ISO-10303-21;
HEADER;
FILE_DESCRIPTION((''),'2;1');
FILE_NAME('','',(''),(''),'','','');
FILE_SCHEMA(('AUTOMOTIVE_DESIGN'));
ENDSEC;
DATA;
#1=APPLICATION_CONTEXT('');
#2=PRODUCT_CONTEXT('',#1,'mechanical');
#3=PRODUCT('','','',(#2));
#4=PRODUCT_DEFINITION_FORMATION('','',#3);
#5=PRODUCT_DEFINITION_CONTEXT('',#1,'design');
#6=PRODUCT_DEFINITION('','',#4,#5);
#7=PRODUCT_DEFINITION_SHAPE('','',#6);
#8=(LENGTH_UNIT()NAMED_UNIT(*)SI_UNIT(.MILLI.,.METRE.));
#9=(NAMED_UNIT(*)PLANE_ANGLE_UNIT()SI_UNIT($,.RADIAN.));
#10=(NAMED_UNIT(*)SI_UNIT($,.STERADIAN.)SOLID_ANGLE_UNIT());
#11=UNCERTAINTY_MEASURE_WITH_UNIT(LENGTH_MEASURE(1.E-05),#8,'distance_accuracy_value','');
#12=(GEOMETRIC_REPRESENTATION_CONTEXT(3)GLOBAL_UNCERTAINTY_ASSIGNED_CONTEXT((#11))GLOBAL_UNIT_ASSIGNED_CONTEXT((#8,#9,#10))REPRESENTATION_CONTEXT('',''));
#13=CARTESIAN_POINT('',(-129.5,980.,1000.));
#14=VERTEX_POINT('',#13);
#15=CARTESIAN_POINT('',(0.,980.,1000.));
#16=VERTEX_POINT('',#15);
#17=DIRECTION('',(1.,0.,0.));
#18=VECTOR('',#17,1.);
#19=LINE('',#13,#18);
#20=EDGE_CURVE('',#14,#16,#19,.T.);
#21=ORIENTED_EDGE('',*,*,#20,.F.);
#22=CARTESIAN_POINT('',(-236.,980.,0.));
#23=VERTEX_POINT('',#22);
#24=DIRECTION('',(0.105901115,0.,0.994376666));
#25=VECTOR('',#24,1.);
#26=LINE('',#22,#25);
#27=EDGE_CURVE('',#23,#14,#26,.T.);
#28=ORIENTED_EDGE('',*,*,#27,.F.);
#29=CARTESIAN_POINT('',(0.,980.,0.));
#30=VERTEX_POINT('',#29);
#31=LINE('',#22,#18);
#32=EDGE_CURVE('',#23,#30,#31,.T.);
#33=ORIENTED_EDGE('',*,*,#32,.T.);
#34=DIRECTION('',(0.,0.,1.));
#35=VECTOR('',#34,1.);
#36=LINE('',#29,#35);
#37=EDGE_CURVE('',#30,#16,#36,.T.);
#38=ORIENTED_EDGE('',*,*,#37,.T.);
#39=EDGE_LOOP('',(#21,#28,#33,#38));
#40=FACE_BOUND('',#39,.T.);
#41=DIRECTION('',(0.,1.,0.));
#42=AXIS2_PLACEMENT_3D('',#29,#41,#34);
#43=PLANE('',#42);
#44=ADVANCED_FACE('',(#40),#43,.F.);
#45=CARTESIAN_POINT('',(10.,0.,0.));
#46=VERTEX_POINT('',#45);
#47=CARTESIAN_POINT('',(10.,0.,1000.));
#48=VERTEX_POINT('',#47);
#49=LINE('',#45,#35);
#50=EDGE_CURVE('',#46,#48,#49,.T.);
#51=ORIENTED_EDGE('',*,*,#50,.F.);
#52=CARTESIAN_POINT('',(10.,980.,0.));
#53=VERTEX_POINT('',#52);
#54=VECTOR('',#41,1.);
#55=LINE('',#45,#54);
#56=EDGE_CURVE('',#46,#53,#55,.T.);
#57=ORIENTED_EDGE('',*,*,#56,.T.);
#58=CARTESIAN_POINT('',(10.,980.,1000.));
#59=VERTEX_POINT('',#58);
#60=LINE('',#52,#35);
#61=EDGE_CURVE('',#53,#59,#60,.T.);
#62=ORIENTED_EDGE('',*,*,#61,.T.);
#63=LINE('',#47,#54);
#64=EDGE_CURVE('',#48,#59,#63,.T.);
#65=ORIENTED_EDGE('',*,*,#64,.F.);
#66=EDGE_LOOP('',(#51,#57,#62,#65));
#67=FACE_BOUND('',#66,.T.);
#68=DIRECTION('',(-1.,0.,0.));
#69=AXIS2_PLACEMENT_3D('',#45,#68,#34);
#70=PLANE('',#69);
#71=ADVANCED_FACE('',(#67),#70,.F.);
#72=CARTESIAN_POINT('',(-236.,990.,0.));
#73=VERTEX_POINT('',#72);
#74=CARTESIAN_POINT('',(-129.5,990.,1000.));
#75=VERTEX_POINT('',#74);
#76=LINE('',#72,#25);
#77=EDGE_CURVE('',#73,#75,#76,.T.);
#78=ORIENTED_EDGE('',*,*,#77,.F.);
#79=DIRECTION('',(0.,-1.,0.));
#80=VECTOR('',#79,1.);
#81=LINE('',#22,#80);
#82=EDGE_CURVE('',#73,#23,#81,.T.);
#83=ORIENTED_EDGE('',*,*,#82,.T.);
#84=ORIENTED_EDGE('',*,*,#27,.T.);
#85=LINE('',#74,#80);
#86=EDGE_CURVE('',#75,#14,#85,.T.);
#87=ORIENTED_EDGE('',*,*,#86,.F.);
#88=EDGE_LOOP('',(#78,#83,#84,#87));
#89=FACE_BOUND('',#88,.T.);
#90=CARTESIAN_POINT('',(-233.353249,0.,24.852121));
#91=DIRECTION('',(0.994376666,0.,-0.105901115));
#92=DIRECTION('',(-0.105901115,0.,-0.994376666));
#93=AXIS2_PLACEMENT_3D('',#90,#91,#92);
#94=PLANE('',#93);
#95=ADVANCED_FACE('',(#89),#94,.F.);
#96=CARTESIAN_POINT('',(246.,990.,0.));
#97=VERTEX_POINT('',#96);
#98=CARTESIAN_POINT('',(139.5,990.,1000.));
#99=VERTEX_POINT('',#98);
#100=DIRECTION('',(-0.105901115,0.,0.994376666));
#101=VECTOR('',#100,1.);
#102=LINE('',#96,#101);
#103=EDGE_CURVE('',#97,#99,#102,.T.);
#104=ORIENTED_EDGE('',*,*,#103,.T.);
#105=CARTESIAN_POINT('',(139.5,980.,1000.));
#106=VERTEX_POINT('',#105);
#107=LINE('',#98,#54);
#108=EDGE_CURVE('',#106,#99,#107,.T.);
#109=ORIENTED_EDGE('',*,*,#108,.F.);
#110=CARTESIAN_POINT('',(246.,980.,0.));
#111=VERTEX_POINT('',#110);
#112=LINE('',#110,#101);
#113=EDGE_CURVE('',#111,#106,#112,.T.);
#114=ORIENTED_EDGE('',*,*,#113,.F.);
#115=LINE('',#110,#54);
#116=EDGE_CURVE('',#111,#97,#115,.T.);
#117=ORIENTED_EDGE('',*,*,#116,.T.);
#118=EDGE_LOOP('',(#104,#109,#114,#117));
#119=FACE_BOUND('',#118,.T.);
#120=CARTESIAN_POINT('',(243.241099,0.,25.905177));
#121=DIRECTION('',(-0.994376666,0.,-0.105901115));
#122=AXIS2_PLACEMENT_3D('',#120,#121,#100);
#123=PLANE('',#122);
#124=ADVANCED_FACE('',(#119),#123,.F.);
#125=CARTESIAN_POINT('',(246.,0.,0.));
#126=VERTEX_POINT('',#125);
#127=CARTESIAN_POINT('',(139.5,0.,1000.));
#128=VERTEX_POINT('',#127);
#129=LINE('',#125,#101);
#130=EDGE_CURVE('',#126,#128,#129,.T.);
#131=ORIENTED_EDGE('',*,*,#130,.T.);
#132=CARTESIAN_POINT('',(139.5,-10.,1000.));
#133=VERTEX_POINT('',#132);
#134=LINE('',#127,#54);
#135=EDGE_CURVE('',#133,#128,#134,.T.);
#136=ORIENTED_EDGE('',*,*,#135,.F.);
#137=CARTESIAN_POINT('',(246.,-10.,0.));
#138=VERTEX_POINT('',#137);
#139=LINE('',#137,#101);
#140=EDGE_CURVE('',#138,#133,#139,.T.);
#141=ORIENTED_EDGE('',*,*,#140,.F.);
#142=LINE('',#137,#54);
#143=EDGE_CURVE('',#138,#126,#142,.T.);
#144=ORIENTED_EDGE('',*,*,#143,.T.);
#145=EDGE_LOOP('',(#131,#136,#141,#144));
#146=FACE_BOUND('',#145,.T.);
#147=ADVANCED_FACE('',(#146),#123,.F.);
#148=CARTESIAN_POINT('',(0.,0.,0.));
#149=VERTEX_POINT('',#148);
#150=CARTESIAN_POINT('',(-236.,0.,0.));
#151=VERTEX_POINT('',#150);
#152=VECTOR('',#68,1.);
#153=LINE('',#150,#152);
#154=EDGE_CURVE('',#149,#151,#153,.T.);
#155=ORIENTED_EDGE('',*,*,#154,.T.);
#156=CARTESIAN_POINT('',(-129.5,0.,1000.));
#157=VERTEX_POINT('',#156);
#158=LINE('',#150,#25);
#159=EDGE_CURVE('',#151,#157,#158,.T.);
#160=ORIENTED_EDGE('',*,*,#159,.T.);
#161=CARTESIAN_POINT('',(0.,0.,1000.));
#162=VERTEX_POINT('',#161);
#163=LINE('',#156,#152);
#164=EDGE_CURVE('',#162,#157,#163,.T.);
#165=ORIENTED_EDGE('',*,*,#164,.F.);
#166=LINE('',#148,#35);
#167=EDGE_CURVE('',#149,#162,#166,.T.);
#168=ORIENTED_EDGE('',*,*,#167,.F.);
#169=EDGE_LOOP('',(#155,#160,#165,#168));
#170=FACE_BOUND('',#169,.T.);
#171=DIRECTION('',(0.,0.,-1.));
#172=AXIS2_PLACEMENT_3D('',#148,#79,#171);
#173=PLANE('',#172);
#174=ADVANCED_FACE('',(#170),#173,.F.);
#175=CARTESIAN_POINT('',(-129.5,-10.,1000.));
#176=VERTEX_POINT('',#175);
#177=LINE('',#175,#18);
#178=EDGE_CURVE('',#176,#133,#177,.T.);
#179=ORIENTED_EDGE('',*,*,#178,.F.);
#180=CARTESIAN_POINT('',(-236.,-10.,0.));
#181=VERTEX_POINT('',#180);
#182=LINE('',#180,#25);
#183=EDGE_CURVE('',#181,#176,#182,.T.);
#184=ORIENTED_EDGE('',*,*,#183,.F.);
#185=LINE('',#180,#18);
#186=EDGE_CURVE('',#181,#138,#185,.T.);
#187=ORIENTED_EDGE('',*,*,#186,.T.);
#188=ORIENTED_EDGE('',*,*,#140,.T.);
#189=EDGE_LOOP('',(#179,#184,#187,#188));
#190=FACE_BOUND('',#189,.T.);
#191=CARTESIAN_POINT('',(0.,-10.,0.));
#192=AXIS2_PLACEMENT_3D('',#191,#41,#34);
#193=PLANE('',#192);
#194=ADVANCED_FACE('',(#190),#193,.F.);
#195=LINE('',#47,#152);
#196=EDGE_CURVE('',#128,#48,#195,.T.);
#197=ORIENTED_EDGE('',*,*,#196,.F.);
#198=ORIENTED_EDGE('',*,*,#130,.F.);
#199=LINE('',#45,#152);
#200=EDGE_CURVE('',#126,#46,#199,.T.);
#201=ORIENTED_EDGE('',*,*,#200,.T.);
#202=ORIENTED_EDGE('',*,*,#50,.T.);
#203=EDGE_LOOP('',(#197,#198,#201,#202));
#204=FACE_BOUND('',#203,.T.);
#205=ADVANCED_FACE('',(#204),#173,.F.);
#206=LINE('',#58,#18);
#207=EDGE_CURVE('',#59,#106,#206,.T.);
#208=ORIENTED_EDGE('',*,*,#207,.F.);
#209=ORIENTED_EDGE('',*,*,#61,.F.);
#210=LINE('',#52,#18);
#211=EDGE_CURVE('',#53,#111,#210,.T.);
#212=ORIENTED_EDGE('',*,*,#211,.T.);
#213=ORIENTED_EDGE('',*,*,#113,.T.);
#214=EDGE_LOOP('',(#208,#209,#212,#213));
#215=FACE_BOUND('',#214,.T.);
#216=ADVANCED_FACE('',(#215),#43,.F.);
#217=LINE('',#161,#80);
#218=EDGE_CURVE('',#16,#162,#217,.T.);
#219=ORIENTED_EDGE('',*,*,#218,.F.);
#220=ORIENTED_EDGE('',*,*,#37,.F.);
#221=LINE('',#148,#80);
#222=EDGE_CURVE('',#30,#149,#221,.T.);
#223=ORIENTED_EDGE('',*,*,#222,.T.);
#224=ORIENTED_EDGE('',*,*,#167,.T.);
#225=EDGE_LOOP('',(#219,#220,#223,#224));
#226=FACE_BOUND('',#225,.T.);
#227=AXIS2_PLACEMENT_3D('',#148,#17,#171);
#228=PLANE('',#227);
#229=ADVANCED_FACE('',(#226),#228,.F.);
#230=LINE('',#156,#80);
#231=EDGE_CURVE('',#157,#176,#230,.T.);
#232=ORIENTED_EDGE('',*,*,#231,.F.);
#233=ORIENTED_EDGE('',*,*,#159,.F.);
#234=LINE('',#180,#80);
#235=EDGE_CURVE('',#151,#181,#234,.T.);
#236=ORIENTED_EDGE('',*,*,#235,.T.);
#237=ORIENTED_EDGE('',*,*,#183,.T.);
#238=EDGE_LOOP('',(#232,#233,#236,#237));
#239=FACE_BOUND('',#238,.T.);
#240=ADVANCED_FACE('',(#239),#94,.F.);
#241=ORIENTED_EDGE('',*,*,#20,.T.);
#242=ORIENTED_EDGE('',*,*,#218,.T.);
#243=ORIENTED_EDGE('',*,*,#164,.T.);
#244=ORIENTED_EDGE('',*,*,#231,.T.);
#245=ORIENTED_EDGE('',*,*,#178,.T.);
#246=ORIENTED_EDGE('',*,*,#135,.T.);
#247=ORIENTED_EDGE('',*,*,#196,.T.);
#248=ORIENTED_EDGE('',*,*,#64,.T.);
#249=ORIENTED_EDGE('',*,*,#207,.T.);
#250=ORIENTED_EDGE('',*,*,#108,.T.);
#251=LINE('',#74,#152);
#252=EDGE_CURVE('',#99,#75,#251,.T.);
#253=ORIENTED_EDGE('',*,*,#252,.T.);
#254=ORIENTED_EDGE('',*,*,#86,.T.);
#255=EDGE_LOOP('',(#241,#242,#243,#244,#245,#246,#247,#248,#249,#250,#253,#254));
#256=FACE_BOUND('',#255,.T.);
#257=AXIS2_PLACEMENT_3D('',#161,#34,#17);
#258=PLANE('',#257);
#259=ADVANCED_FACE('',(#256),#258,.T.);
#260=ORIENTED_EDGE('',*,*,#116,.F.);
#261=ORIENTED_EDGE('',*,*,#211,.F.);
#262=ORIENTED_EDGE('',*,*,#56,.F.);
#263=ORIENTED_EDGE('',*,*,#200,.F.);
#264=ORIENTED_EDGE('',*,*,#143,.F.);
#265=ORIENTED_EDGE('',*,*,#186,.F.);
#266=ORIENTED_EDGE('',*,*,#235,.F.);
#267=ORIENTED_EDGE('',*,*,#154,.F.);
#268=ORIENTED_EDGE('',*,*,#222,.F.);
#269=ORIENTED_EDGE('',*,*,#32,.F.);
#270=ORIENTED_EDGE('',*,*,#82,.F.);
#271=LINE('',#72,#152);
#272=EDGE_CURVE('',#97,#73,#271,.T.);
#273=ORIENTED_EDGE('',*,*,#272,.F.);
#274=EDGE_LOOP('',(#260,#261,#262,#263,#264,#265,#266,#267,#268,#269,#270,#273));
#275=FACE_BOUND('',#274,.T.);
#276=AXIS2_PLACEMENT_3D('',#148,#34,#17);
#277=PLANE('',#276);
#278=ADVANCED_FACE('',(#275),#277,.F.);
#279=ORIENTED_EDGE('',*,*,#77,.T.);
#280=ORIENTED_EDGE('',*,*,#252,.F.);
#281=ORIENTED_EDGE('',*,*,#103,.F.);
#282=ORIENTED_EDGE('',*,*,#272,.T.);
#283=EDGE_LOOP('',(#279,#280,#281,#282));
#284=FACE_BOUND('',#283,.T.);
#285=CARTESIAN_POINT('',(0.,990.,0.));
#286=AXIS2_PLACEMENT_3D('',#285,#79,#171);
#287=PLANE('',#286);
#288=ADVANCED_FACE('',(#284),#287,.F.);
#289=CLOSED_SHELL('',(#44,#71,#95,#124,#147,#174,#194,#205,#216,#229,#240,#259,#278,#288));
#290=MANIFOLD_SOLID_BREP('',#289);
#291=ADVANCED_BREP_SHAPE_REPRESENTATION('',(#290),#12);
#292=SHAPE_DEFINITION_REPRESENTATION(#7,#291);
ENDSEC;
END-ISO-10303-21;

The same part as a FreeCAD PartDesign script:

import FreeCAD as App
import Part
import Sketcher
from FreeCAD import Vector


def add_polygon(sketch, points):
    """Adds a closed chain of lines whose ends are joined by coincident constraints."""
    first, n = sketch.GeometryCount, len(points)
    for a, b in zip(points, points[1:] + points[:1]):
        sketch.addGeometry(Part.LineSegment(App.Vector(*a, 0), App.Vector(*b, 0)), False)
    for i in range(n):
        sketch.addConstraint(Sketcher.Constraint("Coincident", first + i, 2, first + (i + 1) % n, 1))

doc = App.newDocument("Part")
body = doc.addObject("PartDesign::Body", "Body")

sketch1 = doc.addObject("Sketcher::SketchObject", "Sketch")
body.addObject(sketch1)
sketch1.AttachmentSupport = (doc.XY_Plane, [""])
sketch1.MapMode = "FlatFace"
add_polygon(sketch1, [(-236, -10), (246, -10), (246, 0), (10, 0), (10, 980), (246, 980), (246, 990), (-236, 990), (-236, 980), (0, 980), (0, 0), (-236, 0)])
sketch1.addConstraint(Sketcher.Constraint("Horizontal", 0))
sketch1.addConstraint(Sketcher.Constraint("Vertical", 1))
sketch1.addConstraint(Sketcher.Constraint("Horizontal", 2))
sketch1.addConstraint(Sketcher.Constraint("Vertical", 3))
sketch1.addConstraint(Sketcher.Constraint("Horizontal", 4))
sketch1.addConstraint(Sketcher.Constraint("Vertical", 5))
sketch1.addConstraint(Sketcher.Constraint("Horizontal", 6))
sketch1.addConstraint(Sketcher.Constraint("Vertical", 7))
sketch1.addConstraint(Sketcher.Constraint("Horizontal", 8))
sketch1.addConstraint(Sketcher.Constraint("Vertical", 9))
sketch1.addConstraint(Sketcher.Constraint("Horizontal", 10))
sketch1.addConstraint(Sketcher.Constraint("Vertical", 11))
sketch1.addConstraint(Sketcher.Constraint("Coincident", 9, 2, -1, 1))
sketch1.addConstraint(Sketcher.Constraint("PointOnObject", 1, 2, -1))
sketch1.addConstraint(Sketcher.Constraint("Horizontal", 4, 2, 7, 2))
sketch1.addConstraint(Sketcher.Constraint("Vertical", 1, 2, 4, 2))
sketch1.addConstraint(Sketcher.Constraint("Vertical", 7, 2, 10, 2))
sketch1.addConstraint(Sketcher.Constraint("Equal", 4, 8))
sketch1.addConstraint(Sketcher.Constraint("Equal", 1, 5))
sketch1.addConstraint(Sketcher.Constraint("DistanceX", 0, 1, 0, 2, 482.0))
sketch1.addConstraint(Sketcher.Constraint("DistanceX", 2, 2, 2, 1, 236.0))
sketch1.addConstraint(Sketcher.Constraint("DistanceY", 1, 1, 1, 2, 10.0))
sketch1.addConstraint(Sketcher.Constraint("DistanceY", 3, 1, 3, 2, 980.0))

sketch2 = doc.addObject("Sketcher::SketchObject", "Sketch001")
body.addObject(sketch2)
sketch2.AttachmentSupport = (doc.XY_Plane, [""])
sketch2.MapMode = "FlatFace"
sketch2.AttachmentOffset = App.Placement(Vector(0, 0, 1000), App.Rotation())
add_polygon(sketch2, [(140, 990), (-130, 990), (-130, 980), (0, 980), (0, 0), (-130, 0), (-130, -10), (140, -10), (140, 0), (10, 0), (10, 980), (140, 980)])
sketch2.addConstraint(Sketcher.Constraint("Horizontal", 0))
sketch2.addConstraint(Sketcher.Constraint("Vertical", 1))
sketch2.addConstraint(Sketcher.Constraint("Horizontal", 2))
sketch2.addConstraint(Sketcher.Constraint("Vertical", 3))
sketch2.addConstraint(Sketcher.Constraint("Horizontal", 4))
sketch2.addConstraint(Sketcher.Constraint("Vertical", 5))
sketch2.addConstraint(Sketcher.Constraint("Horizontal", 6))
sketch2.addConstraint(Sketcher.Constraint("Vertical", 7))
sketch2.addConstraint(Sketcher.Constraint("Horizontal", 8))
sketch2.addConstraint(Sketcher.Constraint("Vertical", 9))
sketch2.addConstraint(Sketcher.Constraint("Horizontal", 10))
sketch2.addConstraint(Sketcher.Constraint("Vertical", 11))
sketch2.addConstraint(Sketcher.Constraint("Coincident", 3, 2, -1, 1))
sketch2.addConstraint(Sketcher.Constraint("PointOnObject", 7, 2, -1))
sketch2.addConstraint(Sketcher.Constraint("Horizontal", 2, 2, 9, 2))
sketch2.addConstraint(Sketcher.Constraint("Vertical", 1, 2, 4, 2))
sketch2.addConstraint(Sketcher.Constraint("Vertical", 7, 2, 10, 2))
sketch2.addConstraint(Sketcher.Constraint("Equal", 4, 8))
sketch2.addConstraint(Sketcher.Constraint("Equal", 1, 5))
sketch2.addConstraint(Sketcher.Constraint("DistanceX", 0, 2, 0, 1, 269.0))
sketch2.addConstraint(Sketcher.Constraint("DistanceY", 1, 2, 1, 1, 10.0))
sketch2.addConstraint(Sketcher.Constraint("DistanceY", 3, 2, 3, 1, 980.0))
sketch2.addConstraint(Sketcher.Constraint("DistanceX", 2, 1, 2, 2, 129.5))

additiveloft = doc.addObject("PartDesign::AdditiveLoft", "AdditiveLoft")
body.addObject(additiveloft)
additiveloft.Profile = sketch1
additiveloft.Sections = [sketch2]

doc.recompute()
